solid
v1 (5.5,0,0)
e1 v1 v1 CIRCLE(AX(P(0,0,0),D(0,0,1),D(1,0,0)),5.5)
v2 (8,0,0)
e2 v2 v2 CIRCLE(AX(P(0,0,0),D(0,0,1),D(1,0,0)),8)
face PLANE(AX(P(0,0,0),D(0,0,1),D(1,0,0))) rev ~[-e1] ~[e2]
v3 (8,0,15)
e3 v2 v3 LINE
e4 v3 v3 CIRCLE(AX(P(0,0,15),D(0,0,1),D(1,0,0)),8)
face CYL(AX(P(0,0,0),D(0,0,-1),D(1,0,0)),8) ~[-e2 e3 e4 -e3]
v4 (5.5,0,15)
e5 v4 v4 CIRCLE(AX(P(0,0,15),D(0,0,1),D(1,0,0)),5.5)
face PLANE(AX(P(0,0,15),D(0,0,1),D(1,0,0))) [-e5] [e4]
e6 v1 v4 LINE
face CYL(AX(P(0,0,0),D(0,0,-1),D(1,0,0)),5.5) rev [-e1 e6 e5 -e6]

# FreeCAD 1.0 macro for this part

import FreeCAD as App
import Part
import Sketcher

V = App.Vector
Q = App.Units.Quantity

doc = App.newDocument("Part")
body = doc.addObject("PartDesign::Body", "Body")

# Sketch on XY plane
sketch1 = doc.addObject("Sketcher::SketchObject", "Sketch")
body.addObject(sketch1)
sketch1.AttachmentSupport = (doc.XY_Plane, [""])
sketch1.MapMode = "FlatFace"
sketch1.addGeometry(Part.Circle(V(0, 0, 0), V(0, 0, 1), 8), False)
sketch1.addGeometry(Part.Circle(V(0, 0, 0), V(0, 0, 1), 5.5), False)
sketch1.addConstraint(Sketcher.Constraint("Coincident", 0, 3, -1, 1))
sketch1.addConstraint(Sketcher.Constraint("Coincident", 1, 3, -1, 1))
sketch1.addConstraint(Sketcher.Constraint("Diameter", 0, Q("16 mm")))
sketch1.addConstraint(Sketcher.Constraint("Diameter", 1, Q("11 mm")))
pad1 = doc.addObject("PartDesign::Pad", "Pad")
body.addObject(pad1)
pad1.Profile = sketch1
pad1.Length = 15

doc.recompute()
